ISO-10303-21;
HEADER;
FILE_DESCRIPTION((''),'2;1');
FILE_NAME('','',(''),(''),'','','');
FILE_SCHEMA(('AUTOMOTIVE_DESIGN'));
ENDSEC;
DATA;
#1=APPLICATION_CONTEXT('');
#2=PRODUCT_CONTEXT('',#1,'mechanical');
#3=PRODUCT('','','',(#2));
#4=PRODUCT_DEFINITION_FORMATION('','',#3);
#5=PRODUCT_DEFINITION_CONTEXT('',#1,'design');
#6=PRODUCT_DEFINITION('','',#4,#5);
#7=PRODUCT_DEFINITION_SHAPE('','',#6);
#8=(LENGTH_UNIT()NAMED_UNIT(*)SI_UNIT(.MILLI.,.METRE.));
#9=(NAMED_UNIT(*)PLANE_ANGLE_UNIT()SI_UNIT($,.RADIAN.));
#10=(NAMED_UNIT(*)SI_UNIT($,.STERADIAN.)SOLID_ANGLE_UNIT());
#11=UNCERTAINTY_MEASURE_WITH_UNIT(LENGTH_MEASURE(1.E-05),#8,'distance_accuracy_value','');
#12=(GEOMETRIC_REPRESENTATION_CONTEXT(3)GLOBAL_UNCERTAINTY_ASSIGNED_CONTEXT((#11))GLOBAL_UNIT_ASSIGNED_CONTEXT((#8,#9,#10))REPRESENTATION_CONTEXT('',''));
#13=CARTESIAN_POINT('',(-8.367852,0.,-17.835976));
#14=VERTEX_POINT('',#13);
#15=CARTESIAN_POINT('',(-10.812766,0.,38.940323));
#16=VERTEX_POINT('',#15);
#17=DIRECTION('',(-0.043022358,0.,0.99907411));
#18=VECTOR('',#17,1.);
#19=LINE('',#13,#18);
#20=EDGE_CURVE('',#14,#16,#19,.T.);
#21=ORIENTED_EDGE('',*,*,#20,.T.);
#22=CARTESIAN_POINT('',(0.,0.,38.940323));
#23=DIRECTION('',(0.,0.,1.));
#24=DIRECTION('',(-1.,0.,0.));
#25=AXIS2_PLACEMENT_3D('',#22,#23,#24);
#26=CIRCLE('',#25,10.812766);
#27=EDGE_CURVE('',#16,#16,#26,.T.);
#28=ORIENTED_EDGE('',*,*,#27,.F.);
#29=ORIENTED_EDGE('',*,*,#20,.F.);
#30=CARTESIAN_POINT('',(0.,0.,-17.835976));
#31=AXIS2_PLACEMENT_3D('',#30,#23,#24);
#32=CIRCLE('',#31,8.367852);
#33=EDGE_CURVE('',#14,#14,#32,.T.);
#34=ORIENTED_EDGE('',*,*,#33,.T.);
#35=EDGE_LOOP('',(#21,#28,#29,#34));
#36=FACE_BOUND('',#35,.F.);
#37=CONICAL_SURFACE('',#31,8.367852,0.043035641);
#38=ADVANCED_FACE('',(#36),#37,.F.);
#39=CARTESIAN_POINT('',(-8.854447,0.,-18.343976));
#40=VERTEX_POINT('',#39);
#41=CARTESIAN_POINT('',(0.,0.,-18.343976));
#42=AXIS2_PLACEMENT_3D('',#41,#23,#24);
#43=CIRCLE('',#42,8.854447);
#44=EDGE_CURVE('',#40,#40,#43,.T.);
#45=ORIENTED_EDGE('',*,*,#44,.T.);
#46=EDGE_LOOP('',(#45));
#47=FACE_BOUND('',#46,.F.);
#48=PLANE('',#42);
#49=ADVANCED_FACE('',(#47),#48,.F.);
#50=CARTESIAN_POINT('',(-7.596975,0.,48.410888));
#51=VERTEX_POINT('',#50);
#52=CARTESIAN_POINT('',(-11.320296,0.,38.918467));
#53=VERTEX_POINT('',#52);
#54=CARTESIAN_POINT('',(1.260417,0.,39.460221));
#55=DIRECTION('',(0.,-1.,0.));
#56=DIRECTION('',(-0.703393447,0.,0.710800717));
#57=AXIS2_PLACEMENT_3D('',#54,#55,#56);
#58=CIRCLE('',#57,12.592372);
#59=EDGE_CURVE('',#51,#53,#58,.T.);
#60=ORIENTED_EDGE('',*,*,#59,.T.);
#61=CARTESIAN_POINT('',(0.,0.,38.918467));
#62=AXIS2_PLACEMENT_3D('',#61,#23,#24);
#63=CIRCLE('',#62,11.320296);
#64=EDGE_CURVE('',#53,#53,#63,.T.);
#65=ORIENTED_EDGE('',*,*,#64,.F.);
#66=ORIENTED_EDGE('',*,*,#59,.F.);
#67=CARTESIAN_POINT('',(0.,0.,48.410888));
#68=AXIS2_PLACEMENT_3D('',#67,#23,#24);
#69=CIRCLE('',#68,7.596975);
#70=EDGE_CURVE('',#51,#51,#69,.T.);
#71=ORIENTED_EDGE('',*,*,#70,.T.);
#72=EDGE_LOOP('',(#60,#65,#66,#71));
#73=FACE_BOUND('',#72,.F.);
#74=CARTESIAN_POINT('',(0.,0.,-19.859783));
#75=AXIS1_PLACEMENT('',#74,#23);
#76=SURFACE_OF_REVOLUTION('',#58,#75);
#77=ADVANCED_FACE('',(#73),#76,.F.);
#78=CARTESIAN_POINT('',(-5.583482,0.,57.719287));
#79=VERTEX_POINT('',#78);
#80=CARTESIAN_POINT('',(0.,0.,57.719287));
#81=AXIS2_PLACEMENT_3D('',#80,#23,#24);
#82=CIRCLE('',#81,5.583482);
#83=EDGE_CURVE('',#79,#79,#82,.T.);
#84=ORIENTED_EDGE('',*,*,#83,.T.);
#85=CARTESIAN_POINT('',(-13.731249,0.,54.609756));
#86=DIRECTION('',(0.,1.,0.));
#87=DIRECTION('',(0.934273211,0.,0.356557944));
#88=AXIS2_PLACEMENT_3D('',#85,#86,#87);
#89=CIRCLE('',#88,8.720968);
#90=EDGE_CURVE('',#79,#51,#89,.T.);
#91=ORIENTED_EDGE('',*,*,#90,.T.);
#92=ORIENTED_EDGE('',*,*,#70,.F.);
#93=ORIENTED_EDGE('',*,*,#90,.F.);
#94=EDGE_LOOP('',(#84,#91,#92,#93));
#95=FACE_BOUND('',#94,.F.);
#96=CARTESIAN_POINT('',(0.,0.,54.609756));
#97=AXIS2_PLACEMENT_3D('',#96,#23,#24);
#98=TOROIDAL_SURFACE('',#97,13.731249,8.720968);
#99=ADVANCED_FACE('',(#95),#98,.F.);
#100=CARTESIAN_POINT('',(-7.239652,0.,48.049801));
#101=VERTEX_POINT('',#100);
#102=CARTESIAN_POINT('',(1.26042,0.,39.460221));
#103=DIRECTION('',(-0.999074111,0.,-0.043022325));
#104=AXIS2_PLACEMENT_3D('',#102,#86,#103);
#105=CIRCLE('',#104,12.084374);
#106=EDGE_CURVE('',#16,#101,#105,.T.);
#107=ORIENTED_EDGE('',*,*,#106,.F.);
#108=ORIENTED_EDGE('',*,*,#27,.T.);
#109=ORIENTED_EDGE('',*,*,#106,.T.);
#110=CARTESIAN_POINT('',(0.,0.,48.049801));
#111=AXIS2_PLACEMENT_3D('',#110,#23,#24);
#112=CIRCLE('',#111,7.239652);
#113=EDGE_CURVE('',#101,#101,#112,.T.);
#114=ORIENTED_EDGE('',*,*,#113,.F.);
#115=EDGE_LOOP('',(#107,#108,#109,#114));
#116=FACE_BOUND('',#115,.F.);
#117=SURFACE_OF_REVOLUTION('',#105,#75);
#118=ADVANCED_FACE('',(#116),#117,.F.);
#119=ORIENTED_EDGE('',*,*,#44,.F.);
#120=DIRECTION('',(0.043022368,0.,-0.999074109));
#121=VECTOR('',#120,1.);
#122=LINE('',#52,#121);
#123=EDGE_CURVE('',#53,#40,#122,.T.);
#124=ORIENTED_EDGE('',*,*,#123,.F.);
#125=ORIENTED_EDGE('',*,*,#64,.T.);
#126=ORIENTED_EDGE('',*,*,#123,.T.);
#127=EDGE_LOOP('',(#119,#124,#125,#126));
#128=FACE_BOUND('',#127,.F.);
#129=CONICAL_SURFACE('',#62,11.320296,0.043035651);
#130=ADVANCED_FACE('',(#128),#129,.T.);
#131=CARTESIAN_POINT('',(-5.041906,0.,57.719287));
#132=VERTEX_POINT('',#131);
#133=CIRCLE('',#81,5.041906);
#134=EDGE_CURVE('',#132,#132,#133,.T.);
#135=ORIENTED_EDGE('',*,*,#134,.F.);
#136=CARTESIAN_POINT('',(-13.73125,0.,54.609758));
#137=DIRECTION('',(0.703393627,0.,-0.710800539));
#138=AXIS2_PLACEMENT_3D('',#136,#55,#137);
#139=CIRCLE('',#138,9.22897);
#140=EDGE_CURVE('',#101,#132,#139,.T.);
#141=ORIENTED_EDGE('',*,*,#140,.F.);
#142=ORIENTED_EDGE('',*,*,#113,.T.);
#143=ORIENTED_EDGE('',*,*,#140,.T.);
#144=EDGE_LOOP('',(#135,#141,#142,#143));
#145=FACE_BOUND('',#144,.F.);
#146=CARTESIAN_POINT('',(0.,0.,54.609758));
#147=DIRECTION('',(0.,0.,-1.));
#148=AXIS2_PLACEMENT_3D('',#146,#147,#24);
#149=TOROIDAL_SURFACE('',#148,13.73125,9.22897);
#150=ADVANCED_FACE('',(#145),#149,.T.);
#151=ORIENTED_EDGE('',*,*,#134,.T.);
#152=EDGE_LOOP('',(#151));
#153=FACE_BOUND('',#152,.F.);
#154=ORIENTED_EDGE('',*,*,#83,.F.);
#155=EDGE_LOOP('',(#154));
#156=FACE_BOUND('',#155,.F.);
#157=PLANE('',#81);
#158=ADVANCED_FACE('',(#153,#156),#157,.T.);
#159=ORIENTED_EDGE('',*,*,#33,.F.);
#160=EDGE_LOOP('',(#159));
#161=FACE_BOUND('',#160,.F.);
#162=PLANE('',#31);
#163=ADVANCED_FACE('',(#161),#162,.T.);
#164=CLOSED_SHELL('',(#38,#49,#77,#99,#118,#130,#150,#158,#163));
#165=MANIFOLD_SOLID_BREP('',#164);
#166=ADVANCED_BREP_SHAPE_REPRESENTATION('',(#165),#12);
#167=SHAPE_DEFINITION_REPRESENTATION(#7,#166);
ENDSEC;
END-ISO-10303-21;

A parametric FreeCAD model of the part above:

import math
import FreeCAD as App
import Part
import Sketcher
from FreeCAD import Vector
Q = App.Units.Quantity

doc = App.newDocument("Part")
body = doc.addObject("PartDesign::Body", "Body")

# Sketch on XZ plane
sketch1 = body.newObject("Sketcher::SketchObject", "Sketch")
sketch1.AttachmentSupport = (doc.getObject("XZ_Plane"), [""])
sketch1.MapMode = "FlatFace"
sketch1.addGeometry(Part.LineSegment(Vector(-8.9, -18.3, 0), Vector(0, -18.3, 0)), False)
sketch1.addGeometry(Part.LineSegment(Vector(0, -18.3, 0), Vector(0, -17.8, 0)), False)
sketch1.addGeometry(Part.LineSegment(Vector(0, -17.8, 0), Vector(-8.4, -17.8, 0)), False)
sketch1.addGeometry(Part.LineSegment(Vector(-8.4, -17.8, 0), Vector(-10.8, 38.9, 0)), False)
sketch1.addGeometry(Part.ArcOfCircle(Part.Circle(Vector(1.3, 39.5, 0), Vector(0, 0, 1), 12.1), math.radians(135), math.radians(182)), False)
sketch1.addGeometry(Part.ArcOfCircle(Part.Circle(Vector(-13.7, 54.6, 0), Vector(0, 0, 1), 9.2), math.radians(-45), math.radians(20)), False)
sketch1.addGeometry(Part.LineSegment(Vector(-5, 57.7, 0), Vector(-5.6, 57.7, 0)), False)
sketch1.addGeometry(Part.ArcOfCircle(Part.Circle(Vector(-13.7, 54.6, 0), Vector(0, 0, 1), 8.7), math.radians(-45), math.radians(21)), False)
sketch1.addGeometry(Part.ArcOfCircle(Part.Circle(Vector(1.3, 39.5, 0), Vector(0, 0, 1), 12.6), math.radians(135), math.radians(182)), False)
sketch1.addGeometry(Part.LineSegment(Vector(-11.3, 38.9, 0), Vector(-8.9, -18.3, 0)), False)
sketch1.addConstraint(Sketcher.Constraint("Coincident", 0, 2, 1, 1))
sketch1.addConstraint(Sketcher.Constraint("Coincident", 1, 2, 2, 1))
sketch1.addConstraint(Sketcher.Constraint("Coincident", 2, 2, 3, 1))
sketch1.addConstraint(Sketcher.Constraint("Tangent", 3, 2, 4, 2))
sketch1.addConstraint(Sketcher.Constraint("Tangent", 4, 1, 5, 1))
sketch1.addConstraint(Sketcher.Constraint("Coincident", 5, 2, 6, 1))
sketch1.addConstraint(Sketcher.Constraint("Coincident", 6, 2, 7, 2))
sketch1.addConstraint(Sketcher.Constraint("Tangent", 7, 1, 8, 1))
sketch1.addConstraint(Sketcher.Constraint("Tangent", 8, 2, 9, 1))
sketch1.addConstraint(Sketcher.Constraint("Coincident", 9, 2, 0, 1))
sketch1.addConstraint(Sketcher.Constraint("Horizontal", 0))
sketch1.addConstraint(Sketcher.Constraint("Vertical", 1))
sketch1.addConstraint(Sketcher.Constraint("Horizontal", 2))
sketch1.addConstraint(Sketcher.Constraint("Horizontal", 6))
sketch1.addConstraint(Sketcher.Constraint("Coincident", 7, 3, 5, 3))
sketch1.addConstraint(Sketcher.Constraint("Coincident", 8, 3, 4, 3))
sketch1.addConstraint(Sketcher.Constraint("PointOnObject", 0, 2, -2))
sketch1.addConstraint(Sketcher.Constraint("Parallel", 3, 9))
sketch1.addConstraint(Sketcher.Constraint("DistanceY", 1, 1, 1, 2, Q("0.02 in")))
sketch1.addConstraint(Sketcher.Constraint("Radius", 5, 9.22897))
sketch1.addConstraint(Sketcher.Constraint("Radius", 7, 8.720968))
sketch1.addConstraint(Sketcher.Constraint("Radius", 4, 12.084374))
sketch1.addConstraint(Sketcher.Constraint("DistanceX", 7, 3, 5, 2, Q("0.3421001 in")))
sketch1.addConstraint(Sketcher.Constraint("DistanceX", 2, 2, 2, 1, 8.367852))
sketch1.addConstraint(Sketcher.Constraint("DistanceY", -1, 1, 4, 1, 48.049801))
sketch1.addConstraint(Sketcher.Constraint("DistanceY", 2, 2, 3, 2, 56.776299))
sketch1.addConstraint(Sketcher.Constraint("DistanceX", 5, 3, 4, 1, 6.491598))
sketch1.addConstraint(Sketcher.Constraint("Distance", 9, 57.315511))
revolution = body.newObject("PartDesign::Revolution", "Revolution")
revolution.Profile = sketch1
revolution.ReferenceAxis = (sketch1, ["V_Axis"])
revolution.Angle = 360

doc.recompute()
